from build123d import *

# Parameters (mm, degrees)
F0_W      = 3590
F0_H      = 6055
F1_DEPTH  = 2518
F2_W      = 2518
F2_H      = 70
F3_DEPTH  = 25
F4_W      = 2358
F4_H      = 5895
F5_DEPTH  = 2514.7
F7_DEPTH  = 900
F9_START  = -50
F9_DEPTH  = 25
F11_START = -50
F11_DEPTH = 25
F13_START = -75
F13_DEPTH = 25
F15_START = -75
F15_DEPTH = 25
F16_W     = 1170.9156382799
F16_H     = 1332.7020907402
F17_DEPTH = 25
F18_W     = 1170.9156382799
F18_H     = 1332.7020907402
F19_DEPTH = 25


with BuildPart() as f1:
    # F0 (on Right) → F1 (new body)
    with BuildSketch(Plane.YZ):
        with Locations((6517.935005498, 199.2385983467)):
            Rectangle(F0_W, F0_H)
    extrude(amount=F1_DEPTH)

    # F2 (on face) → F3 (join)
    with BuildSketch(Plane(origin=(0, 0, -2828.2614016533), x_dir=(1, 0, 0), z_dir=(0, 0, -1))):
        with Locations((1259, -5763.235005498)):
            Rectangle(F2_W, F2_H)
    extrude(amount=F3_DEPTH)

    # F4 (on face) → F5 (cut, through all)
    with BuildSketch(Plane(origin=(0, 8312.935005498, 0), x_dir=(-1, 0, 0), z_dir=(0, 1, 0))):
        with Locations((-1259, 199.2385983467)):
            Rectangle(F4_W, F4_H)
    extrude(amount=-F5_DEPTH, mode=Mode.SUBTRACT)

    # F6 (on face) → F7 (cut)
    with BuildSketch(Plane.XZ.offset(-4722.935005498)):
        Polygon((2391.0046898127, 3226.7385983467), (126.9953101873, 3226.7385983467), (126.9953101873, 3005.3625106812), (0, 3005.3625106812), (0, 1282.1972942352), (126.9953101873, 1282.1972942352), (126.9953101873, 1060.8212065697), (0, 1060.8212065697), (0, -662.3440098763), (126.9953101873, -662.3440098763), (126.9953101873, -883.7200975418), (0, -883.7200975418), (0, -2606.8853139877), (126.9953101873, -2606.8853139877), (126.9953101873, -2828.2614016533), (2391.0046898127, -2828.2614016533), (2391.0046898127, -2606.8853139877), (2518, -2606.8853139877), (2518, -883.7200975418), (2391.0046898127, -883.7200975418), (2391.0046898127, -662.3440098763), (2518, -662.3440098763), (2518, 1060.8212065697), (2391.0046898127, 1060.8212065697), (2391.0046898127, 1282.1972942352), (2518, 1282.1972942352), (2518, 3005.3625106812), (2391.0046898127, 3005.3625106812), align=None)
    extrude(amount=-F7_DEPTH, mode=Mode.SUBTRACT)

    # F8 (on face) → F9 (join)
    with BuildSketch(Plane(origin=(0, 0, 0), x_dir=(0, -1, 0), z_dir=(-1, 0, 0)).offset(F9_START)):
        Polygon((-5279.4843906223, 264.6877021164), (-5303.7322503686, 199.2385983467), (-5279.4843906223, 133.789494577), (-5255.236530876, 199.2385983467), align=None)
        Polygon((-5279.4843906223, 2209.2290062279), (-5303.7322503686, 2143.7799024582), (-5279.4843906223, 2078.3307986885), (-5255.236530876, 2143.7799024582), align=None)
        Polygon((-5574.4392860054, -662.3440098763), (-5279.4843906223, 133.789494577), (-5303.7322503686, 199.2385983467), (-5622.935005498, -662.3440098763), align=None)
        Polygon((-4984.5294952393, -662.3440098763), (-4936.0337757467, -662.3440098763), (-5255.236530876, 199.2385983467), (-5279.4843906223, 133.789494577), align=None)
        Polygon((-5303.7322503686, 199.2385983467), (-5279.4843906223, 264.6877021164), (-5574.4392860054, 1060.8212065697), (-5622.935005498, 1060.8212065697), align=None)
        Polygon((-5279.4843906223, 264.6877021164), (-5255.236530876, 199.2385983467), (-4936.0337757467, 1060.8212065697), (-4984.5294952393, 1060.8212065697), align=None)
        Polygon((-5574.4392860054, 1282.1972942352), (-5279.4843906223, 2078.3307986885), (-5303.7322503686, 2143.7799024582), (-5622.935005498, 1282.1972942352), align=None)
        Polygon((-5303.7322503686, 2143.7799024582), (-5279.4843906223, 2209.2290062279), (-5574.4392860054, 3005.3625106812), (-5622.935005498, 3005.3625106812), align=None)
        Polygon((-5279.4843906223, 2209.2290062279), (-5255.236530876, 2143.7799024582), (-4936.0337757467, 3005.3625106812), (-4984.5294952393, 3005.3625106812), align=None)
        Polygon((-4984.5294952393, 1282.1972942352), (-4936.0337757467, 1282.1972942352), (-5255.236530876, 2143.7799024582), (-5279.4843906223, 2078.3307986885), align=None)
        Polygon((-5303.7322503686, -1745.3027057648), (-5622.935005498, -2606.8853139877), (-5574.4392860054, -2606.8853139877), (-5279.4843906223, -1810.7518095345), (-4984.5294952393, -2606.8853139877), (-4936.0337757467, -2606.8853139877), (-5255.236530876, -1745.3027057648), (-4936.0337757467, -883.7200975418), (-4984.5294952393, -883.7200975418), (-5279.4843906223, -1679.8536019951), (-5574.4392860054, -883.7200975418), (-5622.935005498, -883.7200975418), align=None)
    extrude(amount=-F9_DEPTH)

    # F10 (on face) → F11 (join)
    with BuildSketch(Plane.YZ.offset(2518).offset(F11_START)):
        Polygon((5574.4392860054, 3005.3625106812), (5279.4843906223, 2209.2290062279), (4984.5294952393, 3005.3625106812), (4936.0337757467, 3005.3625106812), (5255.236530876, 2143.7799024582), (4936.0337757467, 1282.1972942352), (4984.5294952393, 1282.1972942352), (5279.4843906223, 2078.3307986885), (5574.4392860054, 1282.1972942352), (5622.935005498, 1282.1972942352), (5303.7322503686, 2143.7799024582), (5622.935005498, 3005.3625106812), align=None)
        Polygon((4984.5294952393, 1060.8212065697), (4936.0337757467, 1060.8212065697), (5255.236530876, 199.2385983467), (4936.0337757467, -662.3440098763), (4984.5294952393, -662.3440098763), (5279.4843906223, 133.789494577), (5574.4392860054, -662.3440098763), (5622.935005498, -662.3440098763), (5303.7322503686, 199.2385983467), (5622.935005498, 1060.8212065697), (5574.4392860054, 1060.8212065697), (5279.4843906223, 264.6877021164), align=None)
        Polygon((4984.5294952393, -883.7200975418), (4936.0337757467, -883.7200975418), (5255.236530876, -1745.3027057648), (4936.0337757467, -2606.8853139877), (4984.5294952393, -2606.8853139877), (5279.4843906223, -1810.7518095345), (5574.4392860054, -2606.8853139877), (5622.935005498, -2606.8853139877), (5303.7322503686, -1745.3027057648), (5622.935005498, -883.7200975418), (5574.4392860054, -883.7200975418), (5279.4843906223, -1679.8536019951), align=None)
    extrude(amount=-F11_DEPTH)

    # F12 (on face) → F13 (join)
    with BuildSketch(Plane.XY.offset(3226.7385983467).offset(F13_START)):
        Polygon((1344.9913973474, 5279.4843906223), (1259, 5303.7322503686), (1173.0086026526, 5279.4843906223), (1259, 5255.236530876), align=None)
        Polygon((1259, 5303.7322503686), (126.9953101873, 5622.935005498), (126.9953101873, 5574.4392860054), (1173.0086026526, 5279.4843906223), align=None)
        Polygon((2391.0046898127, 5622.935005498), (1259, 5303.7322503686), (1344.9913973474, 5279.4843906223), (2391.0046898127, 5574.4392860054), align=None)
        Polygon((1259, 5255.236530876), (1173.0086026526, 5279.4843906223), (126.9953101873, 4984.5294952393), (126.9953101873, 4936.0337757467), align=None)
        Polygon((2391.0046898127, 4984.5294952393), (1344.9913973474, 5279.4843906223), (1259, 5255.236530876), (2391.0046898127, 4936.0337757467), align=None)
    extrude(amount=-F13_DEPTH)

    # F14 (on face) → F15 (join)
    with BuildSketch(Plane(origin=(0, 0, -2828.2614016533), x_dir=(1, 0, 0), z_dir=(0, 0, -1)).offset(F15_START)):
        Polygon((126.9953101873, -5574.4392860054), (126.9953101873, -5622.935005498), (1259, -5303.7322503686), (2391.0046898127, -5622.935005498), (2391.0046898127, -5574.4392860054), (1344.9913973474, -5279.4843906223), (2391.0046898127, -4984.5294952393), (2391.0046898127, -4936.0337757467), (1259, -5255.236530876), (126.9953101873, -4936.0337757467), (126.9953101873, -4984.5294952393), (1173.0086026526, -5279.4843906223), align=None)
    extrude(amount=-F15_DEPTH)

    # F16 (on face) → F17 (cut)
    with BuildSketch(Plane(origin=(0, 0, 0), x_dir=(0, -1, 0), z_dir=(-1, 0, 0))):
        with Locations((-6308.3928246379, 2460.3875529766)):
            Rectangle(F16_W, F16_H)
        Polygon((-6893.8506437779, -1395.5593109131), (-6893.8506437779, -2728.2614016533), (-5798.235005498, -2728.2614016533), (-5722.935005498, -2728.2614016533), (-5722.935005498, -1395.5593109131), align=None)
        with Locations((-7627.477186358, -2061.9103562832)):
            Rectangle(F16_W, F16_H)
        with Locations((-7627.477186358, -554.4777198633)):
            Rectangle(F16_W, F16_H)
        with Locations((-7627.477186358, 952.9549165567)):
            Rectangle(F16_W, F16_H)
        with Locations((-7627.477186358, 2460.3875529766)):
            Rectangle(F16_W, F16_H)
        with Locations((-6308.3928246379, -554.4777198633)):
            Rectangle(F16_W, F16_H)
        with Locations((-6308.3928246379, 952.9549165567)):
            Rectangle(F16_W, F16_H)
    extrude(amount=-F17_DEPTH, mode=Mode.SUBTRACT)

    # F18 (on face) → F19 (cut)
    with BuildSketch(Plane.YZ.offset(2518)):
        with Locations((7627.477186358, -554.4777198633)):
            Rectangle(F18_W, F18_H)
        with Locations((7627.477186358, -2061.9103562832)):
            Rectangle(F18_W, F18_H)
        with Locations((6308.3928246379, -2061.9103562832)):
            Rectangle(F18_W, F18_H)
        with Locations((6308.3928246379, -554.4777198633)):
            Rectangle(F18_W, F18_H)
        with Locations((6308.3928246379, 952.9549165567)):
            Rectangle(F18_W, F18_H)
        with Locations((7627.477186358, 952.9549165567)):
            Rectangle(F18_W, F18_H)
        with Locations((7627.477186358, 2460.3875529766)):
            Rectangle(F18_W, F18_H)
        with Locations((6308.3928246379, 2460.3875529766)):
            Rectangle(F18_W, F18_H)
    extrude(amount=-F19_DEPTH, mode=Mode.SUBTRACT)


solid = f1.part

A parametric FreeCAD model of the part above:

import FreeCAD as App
import Part
import Sketcher

V = App.Vector


def add_polygon(sketch, points):
    """Adds a closed chain of lines whose ends are joined by coincident constraints."""
    first, n = sketch.GeometryCount, len(points)
    for a, b in zip(points, points[1:] + points[:1]):
        sketch.addGeometry(Part.LineSegment(App.Vector(*a, 0), App.Vector(*b, 0)), False)
    for i in range(n):
        sketch.addConstraint(Sketcher.Constraint("Coincident", first + i, 2, first + (i + 1) % n, 1))

doc = App.newDocument("Part")
body = doc.addObject("PartDesign::Body", "Body")

# Sketch on YZ plane
sketch1 = doc.addObject("Sketcher::SketchObject", "Sketch")
body.addObject(sketch1)
sketch1.AttachmentSupport = (doc.YZ_Plane, [""])
sketch1.MapMode = "FlatFace"
add_polygon(sketch1, [(4722.935005, 3226.738598), (4722.935005, -2828.261402), (8312.935005, -2828.261402), (8312.935005, 3226.738598)])  # lines 0-3
sketch1.addConstraint(Sketcher.Constraint("Vertical", 0))
sketch1.addConstraint(Sketcher.Constraint("Horizontal", 1))
sketch1.addConstraint(Sketcher.Constraint("Vertical", 2))
sketch1.addConstraint(Sketcher.Constraint("Horizontal", 3))
sketch1.addConstraint(Sketcher.Constraint("DistanceX", 1, 1, 1, 2, 3590.0))
sketch1.addConstraint(Sketcher.Constraint("DistanceY", 0, 2, 0, 1, 6055.0))
sketch1.addConstraint(Sketcher.Constraint("DistanceY", 0, 2, -1, 1, 2828.261402))
sketch1.addConstraint(Sketcher.Constraint("DistanceX", -1, 1, 0, 2, 4722.935005))
pad1 = doc.addObject("PartDesign::Pad", "Pad")
body.addObject(pad1)
pad1.Profile = sketch1
pad1.Length = 2518

# Sketch on XY plane
sketch2 = doc.addObject("Sketcher::SketchObject", "Sketch001")
body.addObject(sketch2)
sketch2.AttachmentSupport = (doc.XY_Plane, [""])
sketch2.MapMode = "FlatFace"
sketch2.AttachmentOffset = App.Placement(V(0, 0, -2828.261402), App.Rotation())
add_polygon(sketch2, [(0, 5728.235005), (0, 5798.235005), (2518, 5798.235005), (2518, 5728.235005)])  # lines 0-3
sketch2.addConstraint(Sketcher.Constraint("Vertical", 0))
sketch2.addConstraint(Sketcher.Constraint("Horizontal", 1))
sketch2.addConstraint(Sketcher.Constraint("Vertical", 2))
sketch2.addConstraint(Sketcher.Constraint("Horizontal", 3))
sketch2.addConstraint(Sketcher.Constraint("PointOnObject", 0, 2, -2))
sketch2.addConstraint(Sketcher.Constraint("DistanceX", 1, 1, 1, 2, 2518.0))
sketch2.addConstraint(Sketcher.Constraint("DistanceY", 0, 1, 0, 2, 70.0))
sketch2.addConstraint(Sketcher.Constraint("DistanceY", -1, 1, 0, 2, 5798.235005))
pad2 = doc.addObject("PartDesign::Pad", "Pad001")
body.addObject(pad2)
pad2.Profile = sketch2
pad2.Length = 25
pad2.Reversed = True

# Sketch on XZ plane
sketch3 = doc.addObject("Sketcher::SketchObject", "Sketch002")
body.addObject(sketch3)
sketch3.AttachmentSupport = (doc.XZ_Plane, [""])
sketch3.MapMode = "FlatFace"
sketch3.AttachmentOffset = App.Placement(V(0, 0, -8312.935005), App.Rotation())
add_polygon(sketch3, [(2438, 3146.738598), (2438, -2748.261402), (80, -2748.261402), (80, 3146.738598)])  # lines 0-3
sketch3.addConstraint(Sketcher.Constraint("Vertical", 0))
sketch3.addConstraint(Sketcher.Constraint("Horizontal", 1))
sketch3.addConstraint(Sketcher.Constraint("Vertical", 2))
sketch3.addConstraint(Sketcher.Constraint("Horizontal", 3))
sketch3.addConstraint(Sketcher.Constraint("DistanceX", 1, 2, 1, 1, 2358.0))
sketch3.addConstraint(Sketcher.Constraint("DistanceY", 0, 2, 0, 1, 5895.0))
sketch3.addConstraint(Sketcher.Constraint("DistanceX", -1, 1, 0, 2, 2438.0))
sketch3.addConstraint(Sketcher.Constraint("DistanceY", 0, 2, -1, 1, 2748.261402))
pocket1 = doc.addObject("PartDesign::Pocket", "Pocket")
body.addObject(pocket1)
pocket1.Profile = sketch3
pocket1.Length = 2514.7
pocket1.Reversed = True

# Sketch on XZ plane
sketch4 = doc.addObject("Sketcher::SketchObject", "Sketch003")
body.addObject(sketch4)
sketch4.AttachmentSupport = (doc.XZ_Plane, [""])
sketch4.MapMode = "FlatFace"
sketch4.AttachmentOffset = App.Placement(V(0, 0, -4722.935005), App.Rotation())
add_polygon(sketch4, [(2391.00469, 3226.738598), (126.99531, 3226.738598), (126.99531, 3005.362511), (0, 3005.362511), (0, 1282.197294), (126.99531, 1282.197294), (126.99531, 1060.821207), (0, 1060.821207), (0, -662.34401), (126.99531, -662.34401), (126.99531, -883.720098), (0, -883.720098), (0, -2606.885314), (126.99531, -2606.885314), (126.99531, -2828.261402), (2391.00469, -2828.261402), (2391.00469, -2606.885314), (2518, -2606.885314), (2518, -883.720098), (2391.00469, -883.720098), (2391.00469, -662.34401), (2518, -662.34401), (2518, 1060.821207), (2391.00469, 1060.821207), (2391.00469, 1282.197294), (2518, 1282.197294), (2518, 3005.362511), (2391.00469, 3005.362511)])  # lines 0-27
sketch4.addConstraint(Sketcher.Constraint("Horizontal", 0))
sketch4.addConstraint(Sketcher.Constraint("Vertical", 1))
sketch4.addConstraint(Sketcher.Constraint("Horizontal", 2))
sketch4.addConstraint(Sketcher.Constraint("Vertical", 3))
sketch4.addConstraint(Sketcher.Constraint("Horizontal", 4))
sketch4.addConstraint(Sketcher.Constraint("Vertical", 5))
sketch4.addConstraint(Sketcher.Constraint("Horizontal", 6))
sketch4.addConstraint(Sketcher.Constraint("Vertical", 7))
sketch4.addConstraint(Sketcher.Constraint("Horizontal", 8))
sketch4.addConstraint(Sketcher.Constraint("Vertical", 9))
sketch4.addConstraint(Sketcher.Constraint("Horizontal", 10))
sketch4.addConstraint(Sketcher.Constraint("Vertical", 11))
sketch4.addConstraint(Sketcher.Constraint("Horizontal", 12))
sketch4.addConstraint(Sketcher.Constraint("Vertical", 13))
sketch4.addConstraint(Sketcher.Constraint("Horizontal", 14))
sketch4.addConstraint(Sketcher.Constraint("Vertical", 15))
sketch4.addConstraint(Sketcher.Constraint("Horizontal", 16))
sketch4.addConstraint(Sketcher.Constraint("Vertical", 17))
sketch4.addConstraint(Sketcher.Constraint("Horizontal", 18))
sketch4.addConstraint(Sketcher.Constraint("Vertical", 19))
sketch4.addConstraint(Sketcher.Constraint("Horizontal", 20))
sketch4.addConstraint(Sketcher.Constraint("Vertical", 21))
sketch4.addConstraint(Sketcher.Constraint("Horizontal", 22))
sketch4.addConstraint(Sketcher.Constraint("Vertical", 23))
sketch4.addConstraint(Sketcher.Constraint("Horizontal", 24))
sketch4.addConstraint(Sketcher.Constraint("Vertical", 25))
sketch4.addConstraint(Sketcher.Constraint("Horizontal", 26))
sketch4.addConstraint(Sketcher.Constraint("Vertical", 27))
sketch4.addConstraint(Sketcher.Constraint("PointOnObject", 2, 2, -2))
sketch4.addConstraint(Sketcher.Constraint("PointOnObject", 6, 2, -2))
sketch4.addConstraint(Sketcher.Constraint("PointOnObject", 10, 2, -2))
sketch4.addConstraint(Sketcher.Constraint("Horizontal", 12, 2, 15, 2))
sketch4.addConstraint(Sketcher.Constraint("Horizontal", 10, 2, 17, 2))
sketch4.addConstraint(Sketcher.Constraint("Horizontal", 8, 2, 19, 2))
sketch4.addConstraint(Sketcher.Constraint("Horizontal", 6, 2, 21, 2))
sketch4.addConstraint(Sketcher.Constraint("Horizontal", 4, 2, 23, 2))
sketch4.addConstraint(Sketcher.Constraint("Horizontal", 2, 2, 25, 2))
sketch4.addConstraint(Sketcher.Constraint("Vertical", 1, 2, 4, 2))
sketch4.addConstraint(Sketcher.Constraint("Vertical", 5, 2, 8, 2))
sketch4.addConstraint(Sketcher.Constraint("Vertical", 9, 2, 12, 2))
sketch4.addConstraint(Sketcher.Constraint("Vertical", 15, 2, 18, 2))
sketch4.addConstraint(Sketcher.Constraint("Vertical", 17, 2, 20, 2))
sketch4.addConstraint(Sketcher.Constraint("Vertical", 19, 2, 22, 2))
sketch4.addConstraint(Sketcher.Constraint("Vertical", 21, 2, 24, 2))
sketch4.addConstraint(Sketcher.Constraint("Vertical", 23, 2, 26, 2))
sketch4.addConstraint(Sketcher.Constraint("Equal", 12, 16))
sketch4.addConstraint(Sketcher.Constraint("Equal", 1, 5))
sketch4.addConstraint(Sketcher.Constraint("Equal", 3, 7))
sketch4.addConstraint(Sketcher.Constraint("Equal", 5, 9))
sketch4.addConstraint(Sketcher.Constraint("Equal", 7, 11))
sketch4.addConstraint(Sketcher.Constraint("Equal", 9, 13))
sketch4.addConstraint(Sketcher.Constraint("DistanceX", -1, 1, 16, 2, 2518.0))
sketch4.addConstraint(Sketcher.Constraint("DistanceX", 0, 2, 0, 1, 2264.00938))
sketch4.addConstraint(Sketcher.Constraint("DistanceY", -1, 1, 0, 2, 3226.738598))
sketch4.addConstraint(Sketcher.Constraint("DistanceY", 13, 2, -1, 1, 2828.261402))
sketch4.addConstraint(Sketcher.Constraint("DistanceY", 1, 2, 1, 1, 221.376088))
pocket2 = doc.addObject("PartDesign::Pocket", "Pocket001")
body.addObject(pocket2)
pocket2.Profile = sketch4
pocket2.Length = 900

# Sketch on YZ plane
sketch5 = doc.addObject("Sketcher::SketchObject", "Sketch004")
body.addObject(sketch5)
sketch5.AttachmentSupport = (doc.YZ_Plane, [""])
sketch5.MapMode = "FlatFace"
sketch5.AttachmentOffset = App.Placement(V(0, 0, 50), App.Rotation())
add_polygon(sketch5, [(5303.73225, 199.238598), (5622.935005, -662.34401), (5574.439286, -662.34401), (5279.484391, 133.789495), (4984.529495, -662.34401), (4936.033776, -662.34401), (5255.236531, 199.238598), (4936.033776, 1060.821207), (4984.529495, 1060.821207), (5279.484391, 264.687702), (5574.439286, 1060.821207), (5622.935005, 1060.821207)])  # lines 0-11
add_polygon(sketch5, [(5303.73225, 2143.779902), (5622.935005, 1282.197294), (5574.439286, 1282.197294), (5279.484391, 2078.330799), (4984.529495, 1282.197294), (4936.033776, 1282.197294), (5255.236531, 2143.779902), (4936.033776, 3005.362511), (4984.529495, 3005.362511), (5279.484391, 2209.229006), (5574.439286, 3005.362511), (5622.935005, 3005.362511)])  # lines 12-23
add_polygon(sketch5, [(5303.73225, -1745.302706), (5622.935005, -2606.885314), (5574.439286, -2606.885314), (5279.484391, -1810.75181), (4984.529495, -2606.885314), (4936.033776, -2606.885314), (5255.236531, -1745.302706), (4936.033776, -883.720098), (4984.529495, -883.720098), (5279.484391, -1679.853602), (5574.439286, -883.720098), (5622.935005, -883.720098)])  # lines 24-35
sketch5.addConstraint(Sketcher.Constraint("Horizontal", 1))
sketch5.addConstraint(Sketcher.Constraint("Horizontal", 4))
sketch5.addConstraint(Sketcher.Constraint("Horizontal", 7))
sketch5.addConstraint(Sketcher.Constraint("Horizontal", 10))
sketch5.addConstraint(Sketcher.Constraint("Horizontal", 13))
sketch5.addConstraint(Sketcher.Constraint("Horizontal", 16))
sketch5.addConstraint(Sketcher.Constraint("Horizontal", 19))
sketch5.addConstraint(Sketcher.Constraint("Horizontal", 22))
sketch5.addConstraint(Sketcher.Constraint("Horizontal", 25))
sketch5.addConstraint(Sketcher.Constraint("Horizontal", 28))
sketch5.addConstraint(Sketcher.Constraint("Horizontal", 31))
sketch5.addConstraint(Sketcher.Constraint("Horizontal", 34))
sketch5.addConstraint(Sketcher.Constraint("Parallel", 0, 2))
sketch5.addConstraint(Sketcher.Constraint("Parallel", 3, 5))
sketch5.addConstraint(Sketcher.Constraint("Parallel", 2, 6))
sketch5.addConstraint(Sketcher.Constraint("Parallel", 6, 8))
sketch5.addConstraint(Sketcher.Constraint("Parallel", 5, 9))
sketch5.addConstraint(Sketcher.Constraint("Parallel", 9, 11))
sketch5.addConstraint(Sketcher.Constraint("Parallel", 8, 12))
sketch5.addConstraint(Sketcher.Constraint("Parallel", 12, 14))
sketch5.addConstraint(Sketcher.Constraint("Parallel", 11, 15))
sketch5.addConstraint(Sketcher.Constraint("Parallel", 15, 17))
sketch5.addConstraint(Sketcher.Constraint("Parallel", 14, 18))
sketch5.addConstraint(Sketcher.Constraint("Parallel", 18, 20))
sketch5.addConstraint(Sketcher.Constraint("Parallel", 17, 21))
sketch5.addConstraint(Sketcher.Constraint("Parallel", 21, 23))
sketch5.addConstraint(Sketcher.Constraint("Parallel", 20, 24))
sketch5.addConstraint(Sketcher.Constraint("Parallel", 24, 26))
sketch5.addConstraint(Sketcher.Constraint("Parallel", 23, 27))
sketch5.addConstraint(Sketcher.Constraint("Parallel", 27, 29))
sketch5.addConstraint(Sketcher.Constraint("Parallel", 26, 30))
sketch5.addConstraint(Sketcher.Constraint("Parallel", 30, 32))
sketch5.addConstraint(Sketcher.Constraint("Parallel", 29, 33))
sketch5.addConstraint(Sketcher.Constraint("Parallel", 33, 35))
sketch5.addConstraint(Sketcher.Constraint("Horizontal", 1, 2, 3, 2))
sketch5.addConstraint(Sketcher.Constraint("Horizontal", 7, 2, 9, 2))
sketch5.addConstraint(Sketcher.Constraint("Horizontal", 5, 2, 11, 2))
sketch5.addConstraint(Sketcher.Constraint("Horizontal", 13, 2, 15, 2))
sketch5.addConstraint(Sketcher.Constraint("Horizontal", 19, 2, 21, 2))
sketch5.addConstraint(Sketcher.Constraint("Horizontal", 17, 2, 23, 2))
sketch5.addConstraint(Sketcher.Constraint("Horizontal", 25, 2, 27, 2))
sketch5.addConstraint(Sketcher.Constraint("Horizontal", 31, 2, 33, 2))
sketch5.addConstraint(Sketcher.Constraint("Horizontal", 29, 2, 35, 2))
sketch5.addConstraint(Sketcher.Constraint("Vertical", 4, 2, 6, 2))
sketch5.addConstraint(Sketcher.Constraint("Vertical", 3, 2, 7, 2))
sketch5.addConstraint(Sketcher.Constraint("Vertical", 2, 2, 8, 2))
sketch5.addConstraint(Sketcher.Constraint("Vertical", 1, 2, 9, 2))
sketch5.addConstraint(Sketcher.Constraint("Vertical", 10, 2, 12, 2))
sketch5.addConstraint(Sketcher.Constraint("Vertical", 9, 2, 13, 2))
sketch5.addConstraint(Sketcher.Constraint("Vertical", 8, 2, 14, 2))
sketch5.addConstraint(Sketcher.Constraint("Vertical", 6, 2, 16, 2))
sketch5.addConstraint(Sketcher.Constraint("Vertical", 5, 2, 17, 2))
sketch5.addConstraint(Sketcher.Constraint("Vertical", 16, 2, 18, 2))
sketch5.addConstraint(Sketcher.Constraint("Vertical", 15, 2, 19, 2))
sketch5.addConstraint(Sketcher.Constraint("Vertical", 14, 2, 20, 2))
sketch5.addConstraint(Sketcher.Constraint("Vertical", 22, 2, 24, 2))
sketch5.addConstraint(Sketcher.Constraint("Vertical", 21, 2, 25, 2))
sketch5.addConstraint(Sketcher.Constraint("Vertical", 20, 2, 26, 2))
sketch5.addConstraint(Sketcher.Constraint("Vertical", 18, 2, 28, 2))
sketch5.addConstraint(Sketcher.Constraint("Vertical", 17, 2, 29, 2))
sketch5.addConstraint(Sketcher.Constraint("Vertical", 28, 2, 30, 2))
sketch5.addConstraint(Sketcher.Constraint("Vertical", 27, 2, 31, 2))
sketch5.addConstraint(Sketcher.Constraint("Vertical", 26, 2, 32, 2))
sketch5.addConstraint(Sketcher.Constraint("Equal", 1, 4))
sketch5.addConstraint(Sketcher.Constraint("DistanceX", 1, 2, 1, 1, 48.495719))
sketch5.addConstraint(Sketcher.Constraint("DistanceY", -1, 1, 5, 2, 199.238598))
sketch5.addConstraint(Sketcher.Constraint("DistanceY", -1, 1, 14, 2, 2078.330799))
sketch5.addConstraint(Sketcher.Constraint("DistanceY", 32, 2, -1, 1, 1679.853602))
sketch5.addConstraint(Sketcher.Constraint("DistanceY", 26, 2, 1, 2, 1148.4078))
sketch5.addConstraint(Sketcher.Constraint("Distance", 2, 849.015281))
sketch5.addConstraint(Sketcher.Constraint("DistanceY", 0, 2, -1, 1, 662.34401))
sketch5.addConstraint(Sketcher.Constraint("DistanceX", -1, 1, 2, 2, 5279.484391))
pad3 = doc.addObject("PartDesign::Pad", "Pad002")
body.addObject(pad3)
pad3.Profile = sketch5
pad3.Length = 25

# Sketch on YZ plane
sketch6 = doc.addObject("Sketcher::SketchObject", "Sketch005")
body.addObject(sketch6)
sketch6.AttachmentSupport = (doc.YZ_Plane, [""])
sketch6.MapMode = "FlatFace"
sketch6.AttachmentOffset = App.Placement(V(0, 0, 2468), App.Rotation())
add_polygon(sketch6, [(5574.439286, 3005.362511), (5279.484391, 2209.229006), (4984.529495, 3005.362511), (4936.033776, 3005.362511), (5255.236531, 2143.779902), (4936.033776, 1282.197294), (4984.529495, 1282.197294), (5279.484391, 2078.330799), (5574.439286, 1282.197294), (5622.935005, 1282.197294), (5303.73225, 2143.779902), (5622.935005, 3005.362511)])  # lines 0-11
add_polygon(sketch6, [(4984.529495, 1060.821207), (4936.033776, 1060.821207), (5255.236531, 199.238598), (4936.033776, -662.34401), (4984.529495, -662.34401), (5279.484391, 133.789495), (5574.439286, -662.34401), (5622.935005, -662.34401), (5303.73225, 199.238598), (5622.935005, 1060.821207), (5574.439286, 1060.821207), (5279.484391, 264.687702)])  # lines 12-23
add_polygon(sketch6, [(4984.529495, -883.720098), (4936.033776, -883.720098), (5255.236531, -1745.302706), (4936.033776, -2606.885314), (4984.529495, -2606.885314), (5279.484391, -1810.75181), (5574.439286, -2606.885314), (5622.935005, -2606.885314), (5303.73225, -1745.302706), (5622.935005, -883.720098), (5574.439286, -883.720098), (5279.484391, -1679.853602)])  # lines 24-35
sketch6.addConstraint(Sketcher.Constraint("Horizontal", 2))
sketch6.addConstraint(Sketcher.Constraint("Horizontal", 5))
sketch6.addConstraint(Sketcher.Constraint("Horizontal", 8))
sketch6.addConstraint(Sketcher.Constraint("Horizontal", 11))
sketch6.addConstraint(Sketcher.Constraint("Horizontal", 12))
sketch6.addConstraint(Sketcher.Constraint("Horizontal", 15))
sketch6.addConstraint(Sketcher.Constraint("Horizontal", 18))
sketch6.addConstraint(Sketcher.Constraint("Horizontal", 21))
sketch6.addConstraint(Sketcher.Constraint("Horizontal", 24))
sketch6.addConstraint(Sketcher.Constraint("Horizontal", 27))
sketch6.addConstraint(Sketcher.Constraint("Horizontal", 30))
sketch6.addConstraint(Sketcher.Constraint("Horizontal", 33))
sketch6.addConstraint(Sketcher.Constraint("Parallel", 1, 3))
sketch6.addConstraint(Sketcher.Constraint("Parallel", 0, 4))
sketch6.addConstraint(Sketcher.Constraint("Parallel", 4, 6))
sketch6.addConstraint(Sketcher.Constraint("Parallel", 3, 7))
sketch6.addConstraint(Sketcher.Constraint("Parallel", 7, 9))
sketch6.addConstraint(Sketcher.Constraint("Parallel", 6, 10))
sketch6.addConstraint(Sketcher.Constraint("Parallel", 9, 13))
sketch6.addConstraint(Sketcher.Constraint("Parallel", 10, 14))
sketch6.addConstraint(Sketcher.Constraint("Parallel", 14, 16))
sketch6.addConstraint(Sketcher.Constraint("Parallel", 13, 17))
sketch6.addConstraint(Sketcher.Constraint("Parallel", 17, 19))
sketch6.addConstraint(Sketcher.Constraint("Parallel", 16, 20))
sketch6.addConstraint(Sketcher.Constraint("Parallel", 20, 22))
sketch6.addConstraint(Sketcher.Constraint("Parallel", 19, 23))
sketch6.addConstraint(Sketcher.Constraint("Parallel", 23, 25))
sketch6.addConstraint(Sketcher.Constraint("Parallel", 22, 26))
sketch6.addConstraint(Sketcher.Constraint("Parallel", 26, 28))
sketch6.addConstraint(Sketcher.Constraint("Parallel", 25, 29))
sketch6.addConstraint(Sketcher.Constraint("Parallel", 29, 31))
sketch6.addConstraint(Sketcher.Constraint("Parallel", 28, 32))
sketch6.addConstraint(Sketcher.Constraint("Parallel", 32, 34))
sketch6.addConstraint(Sketcher.Constraint("Parallel", 31, 35))
sketch6.addConstraint(Sketcher.Constraint("Horizontal", 5, 2, 7, 2))
sketch6.addConstraint(Sketcher.Constraint("Horizontal", 3, 2, 9, 2))
sketch6.addConstraint(Sketcher.Constraint("Horizontal", 2, 2, 10, 2))
sketch6.addConstraint(Sketcher.Constraint("Horizontal", 15, 2, 17, 2))
sketch6.addConstraint(Sketcher.Constraint("Horizontal", 13, 2, 19, 2))
sketch6.addConstraint(Sketcher.Constraint("Horizontal", 12, 2, 20, 2))
sketch6.addConstraint(Sketcher.Constraint("Horizontal", 27, 2, 29, 2))
sketch6.addConstraint(Sketcher.Constraint("Horizontal", 25, 2, 31, 2))
sketch6.addConstraint(Sketcher.Constraint("Horizontal", 24, 2, 32, 2))
sketch6.addConstraint(Sketcher.Constraint("Vertical", 2, 2, 4, 2))
sketch6.addConstraint(Sketcher.Constraint("Vertical", 1, 2, 5, 2))
sketch6.addConstraint(Sketcher.Constraint("Vertical", 0, 2, 6, 2))
sketch6.addConstraint(Sketcher.Constraint("Vertical", 8, 2, 10, 2))
sketch6.addConstraint(Sketcher.Constraint("Vertical", 4, 2, 12, 2))
sketch6.addConstraint(Sketcher.Constraint("Vertical", 3, 2, 13, 2))
sketch6.addConstraint(Sketcher.Constraint("Vertical", 12, 2, 14, 2))
sketch6.addConstraint(Sketcher.Constraint("Vertical", 5, 2, 15, 2))
sketch6.addConstraint(Sketcher.Constraint("Vertical", 6, 2, 16, 2))
sketch6.addConstraint(Sketcher.Constraint("Vertical", 10, 2, 18, 2))
sketch6.addConstraint(Sketcher.Constraint("Vertical", 17, 2, 21, 2))
sketch6.addConstraint(Sketcher.Constraint("Vertical", 16, 2, 22, 2))
sketch6.addConstraint(Sketcher.Constraint("Vertical", 14, 2, 24, 2))
sketch6.addConstraint(Sketcher.Constraint("Vertical", 13, 2, 25, 2))
sketch6.addConstraint(Sketcher.Constraint("Vertical", 24, 2, 26, 2))
sketch6.addConstraint(Sketcher.Constraint("Vertical", 23, 2, 27, 2))
sketch6.addConstraint(Sketcher.Constraint("Vertical", 22, 2, 28, 2))
sketch6.addConstraint(Sketcher.Constraint("Vertical", 20, 2, 30, 2))
sketch6.addConstraint(Sketcher.Constraint("Vertical", 29, 2, 33, 2))
sketch6.addConstraint(Sketcher.Constraint("Vertical", 28, 2, 34, 2))
sketch6.addConstraint(Sketcher.Constraint("Equal", 5, 8))
sketch6.addConstraint(Sketcher.Constraint("DistanceX", 2, 2, 2, 1, 48.495719))
sketch6.addConstraint(Sketcher.Constraint("DistanceY", -1, 1, 6, 2, 2078.330799))
sketch6.addConstraint(Sketcher.Constraint("DistanceY", -1, 1, 13, 2, 199.238598))
sketch6.addConstraint(Sketcher.Constraint("DistanceY", 34, 2, -1, 1, 1679.853602))
sketch6.addConstraint(Sketcher.Constraint("DistanceY", 16, 2, 5, 2, 1148.4078))
sketch6.addConstraint(Sketcher.Constraint("Distance", 0, 849.015281))
sketch6.addConstraint(Sketcher.Constraint("DistanceX", -1, 1, 0, 2, 5279.484391))
sketch6.addConstraint(Sketcher.Constraint("DistanceY", -1, 1, 1, 2, 3005.362511))
pad4 = doc.addObject("PartDesign::Pad", "Pad003")
body.addObject(pad4)
pad4.Profile = sketch6
pad4.Length = 25
pad4.Reversed = True

# Sketch on XY plane
sketch7 = doc.addObject("Sketcher::SketchObject", "Sketch006")
body.addObject(sketch7)
sketch7.AttachmentSupport = (doc.XY_Plane, [""])
sketch7.MapMode = "FlatFace"
sketch7.AttachmentOffset = App.Placement(V(0, 0, 3151.738598), App.Rotation())
add_polygon(sketch7, [(1259, 5303.73225), (126.99531, 5622.935005), (126.99531, 5574.439286), (1173.008603, 5279.484391), (126.99531, 4984.529495), (126.99531, 4936.033776), (1259, 5255.236531), (2391.00469, 4936.033776), (2391.00469, 4984.529495), (1344.991397, 5279.484391), (2391.00469, 5574.439286), (2391.00469, 5622.935005)])  # lines 0-11
sketch7.addConstraint(Sketcher.Constraint("Vertical", 1))
sketch7.addConstraint(Sketcher.Constraint("Vertical", 4))
sketch7.addConstraint(Sketcher.Constraint("Vertical", 7))
sketch7.addConstraint(Sketcher.Constraint("Vertical", 10))
sketch7.addConstraint(Sketcher.Constraint("Parallel", 0, 2))
sketch7.addConstraint(Sketcher.Constraint("Parallel", 3, 5))
sketch7.addConstraint(Sketcher.Constraint("Parallel", 2, 6))
sketch7.addConstraint(Sketcher.Constraint("Parallel", 6, 8))
sketch7.addConstraint(Sketcher.Constraint("Parallel", 5, 9))
sketch7.addConstraint(Sketcher.Constraint("Parallel", 9, 11))
sketch7.addConstraint(Sketcher.Constraint("Horizontal", 4, 2, 6, 2))
sketch7.addConstraint(Sketcher.Constraint("Horizontal", 3, 2, 7, 2))
sketch7.addConstraint(Sketcher.Constraint("Horizontal", 2, 2, 8, 2))
sketch7.addConstraint(Sketcher.Constraint("Horizontal", 1, 2, 9, 2))
sketch7.addConstraint(Sketcher.Constraint("Horizontal", 0, 2, 10, 2))
sketch7.addConstraint(Sketcher.Constraint("Vertical", 1, 2, 3, 2))
sketch7.addConstraint(Sketcher.Constraint("Vertical", 7, 2, 9, 2))
sketch7.addConstraint(Sketcher.Constraint("Equal", 1, 4))
sketch7.addConstraint(Sketcher.Constraint("DistanceX", -1, 1, 5, 2, 1259.0))
sketch7.addConstraint(Sketcher.Constraint("DistanceY", 1, 2, 1, 1, 48.495719))
sketch7.addConstraint(Sketcher.Constraint("Distance", 2, 1086.803661))
sketch7.addConstraint(Sketcher.Constraint("DistanceX", -1, 1, 0, 2, 126.99531))
sketch7.addConstraint(Sketcher.Constraint("DistanceY", -1, 1, 2, 2, 5279.484391))
sketch7.addConstraint(Sketcher.Constraint("DistanceY", -1, 1, 5, 2, 5255.236531))
pad5 = doc.addObject("PartDesign::Pad", "Pad004")
body.addObject(pad5)
pad5.Profile = sketch7
pad5.Length = 25
pad5.Reversed = True

# Sketch on XY plane
sketch8 = doc.addObject("Sketcher::SketchObject", "Sketch007")
body.addObject(sketch8)
sketch8.AttachmentSupport = (doc.XY_Plane, [""])
sketch8.MapMode = "FlatFace"
sketch8.AttachmentOffset = App.Placement(V(0, 0, -2753.261402), App.Rotation())
add_polygon(sketch8, [(126.99531, 5574.439286), (126.99531, 5622.935005), (1259, 5303.73225), (2391.00469, 5622.935005), (2391.00469, 5574.439286), (1344.991397, 5279.484391), (2391.00469, 4984.529495), (2391.00469, 4936.033776), (1259, 5255.236531), (126.99531, 4936.033776), (126.99531, 4984.529495), (1173.008603, 5279.484391)])  # lines 0-11
sketch8.addConstraint(Sketcher.Constraint("Vertical", 0))
sketch8.addConstraint(Sketcher.Constraint("Vertical", 3))
sketch8.addConstraint(Sketcher.Constraint("Vertical", 6))
sketch8.addConstraint(Sketcher.Constraint("Vertical", 9))
sketch8.addConstraint(Sketcher.Constraint("Parallel", 2, 4))
sketch8.addConstraint(Sketcher.Constraint("Parallel", 1, 5))
sketch8.addConstraint(Sketcher.Constraint("Parallel", 5, 7))
sketch8.addConstraint(Sketcher.Constraint("Parallel", 4, 8))
sketch8.addConstraint(Sketcher.Constraint("Parallel", 8, 10))
sketch8.addConstraint(Sketcher.Constraint("Parallel", 7, 11))
sketch8.addConstraint(Sketcher.Constraint("Horizontal", 0, 2, 2, 2))
sketch8.addConstraint(Sketcher.Constraint("Horizontal", 6, 2, 8, 2))
sketch8.addConstraint(Sketcher.Constraint("Horizontal", 5, 2, 9, 2))
sketch8.addConstraint(Sketcher.Constraint("Horizontal", 4, 2, 10, 2))
sketch8.addConstraint(Sketcher.Constraint("Horizontal", 3, 2, 11, 2))
sketch8.addConstraint(Sketcher.Constraint("Vertical", 3, 2, 5, 2))
sketch8.addConstraint(Sketcher.Constraint("Vertical", 1, 2, 7, 2))
sketch8.addConstraint(Sketcher.Constraint("Equal", 3, 6))
sketch8.addConstraint(Sketcher.Constraint("DistanceX", -1, 1, 1, 2, 1259.0))
sketch8.addConstraint(Sketcher.Constraint("DistanceY", 0, 1, 0, 2, 48.495719))
sketch8.addConstraint(Sketcher.Constraint("Distance", 4, 1086.803661))
sketch8.addConstraint(Sketcher.Constraint("DistanceX", -1, 1, 0, 2, 126.99531))
sketch8.addConstraint(Sketcher.Constraint("DistanceY", -1, 1, 1, 2, 5303.73225))
sketch8.addConstraint(Sketcher.Constraint("DistanceY", -1, 1, 4, 2, 5279.484391))
pad6 = doc.addObject("PartDesign::Pad", "Pad005")
body.addObject(pad6)
pad6.Profile = sketch8
pad6.Length = 25

# Sketch on YZ plane
sketch9 = doc.addObject("Sketcher::SketchObject", "Sketch008")
body.addObject(sketch9)
sketch9.AttachmentSupport = (doc.YZ_Plane, [""])
sketch9.MapMode = "FlatFace"
add_polygon(sketch9, [(6893.850644, 3126.738598), (6893.850644, 1794.036508), (5722.935005, 1794.036508), (5722.935005, 3126.738598)])  # lines 0-3
add_polygon(sketch9, [(6893.850644, -1395.559311), (6893.850644, -2728.261402), (5722.935005, -2728.261402), (5722.935005, -1395.559311)])  # lines 4-7
add_polygon(sketch9, [(8212.935005, -1395.559311), (8212.935005, -2728.261402), (7042.019367, -2728.261402), (7042.019367, -1395.559311)])  # lines 8-11
add_polygon(sketch9, [(8212.935005, 111.873326), (8212.935005, -1220.828765), (7042.019367, -1220.828765), (7042.019367, 111.873326)])  # lines 12-15
add_polygon(sketch9, [(8212.935005, 1619.305962), (8212.935005, 286.603871), (7042.019367, 286.603871), (7042.019367, 1619.305962)])  # lines 16-19
add_polygon(sketch9, [(8212.935005, 3126.738598), (8212.935005, 1794.036508), (7042.019367, 1794.036508), (7042.019367, 3126.738598)])  # lines 20-23
add_polygon(sketch9, [(6893.850644, 111.873326), (6893.850644, -1220.828765), (5722.935005, -1220.828765), (5722.935005, 111.873326)])  # lines 24-27
add_polygon(sketch9, [(6893.850644, 1619.305962), (6893.850644, 286.603871), (5722.935005, 286.603871), (5722.935005, 1619.305962)])  # lines 28-31
sketch9.addConstraint(Sketcher.Constraint("Vertical", 0))
sketch9.addConstraint(Sketcher.Constraint("Horizontal", 1))
sketch9.addConstraint(Sketcher.Constraint("Vertical", 2))
sketch9.addConstraint(Sketcher.Constraint("Horizontal", 3))
sketch9.addConstraint(Sketcher.Constraint("Vertical", 4))
sketch9.addConstraint(Sketcher.Constraint("Horizontal", 5))
sketch9.addConstraint(Sketcher.Constraint("Vertical", 6))
sketch9.addConstraint(Sketcher.Constraint("Horizontal", 7))
sketch9.addConstraint(Sketcher.Constraint("Vertical", 8))
sketch9.addConstraint(Sketcher.Constraint("Horizontal", 9))
sketch9.addConstraint(Sketcher.Constraint("Vertical", 10))
sketch9.addConstraint(Sketcher.Constraint("Horizontal", 11))
sketch9.addConstraint(Sketcher.Constraint("Vertical", 12))
sketch9.addConstraint(Sketcher.Constraint("Horizontal", 13))
sketch9.addConstraint(Sketcher.Constraint("Vertical", 14))
sketch9.addConstraint(Sketcher.Constraint("Horizontal", 15))
sketch9.addConstraint(Sketcher.Constraint("Vertical", 16))
sketch9.addConstraint(Sketcher.Constraint("Horizontal", 17))
sketch9.addConstraint(Sketcher.Constraint("Vertical", 18))
sketch9.addConstraint(Sketcher.Constraint("Horizontal", 19))
sketch9.addConstraint(Sketcher.Constraint("Vertical", 20))
sketch9.addConstraint(Sketcher.Constraint("Horizontal", 21))
sketch9.addConstraint(Sketcher.Constraint("Vertical", 22))
sketch9.addConstraint(Sketcher.Constraint("Horizontal", 23))
sketch9.addConstraint(Sketcher.Constraint("Vertical", 24))
sketch9.addConstraint(Sketcher.Constraint("Horizontal", 25))
sketch9.addConstraint(Sketcher.Constraint("Vertical", 26))
sketch9.addConstraint(Sketcher.Constraint("Horizontal", 27))
sketch9.addConstraint(Sketcher.Constraint("Vertical", 28))
sketch9.addConstraint(Sketcher.Constraint("Horizontal", 29))
sketch9.addConstraint(Sketcher.Constraint("Vertical", 30))
sketch9.addConstraint(Sketcher.Constraint("Horizontal", 31))
sketch9.addConstraint(Sketcher.Constraint("Horizontal", 5, 2, 8, 2))
sketch9.addConstraint(Sketcher.Constraint("Horizontal", 7, 2, 10, 2))
sketch9.addConstraint(Sketcher.Constraint("Horizontal", 1, 2, 20, 2))
sketch9.addConstraint(Sketcher.Constraint("Horizontal", 3, 2, 22, 2))
sketch9.addConstraint(Sketcher.Constraint("Horizontal", 13, 2, 24, 2))
sketch9.addConstraint(Sketcher.Constraint("Horizontal", 15, 2, 26, 2))
sketch9.addConstraint(Sketcher.Constraint("Horizontal", 17, 2, 28, 2))
sketch9.addConstraint(Sketcher.Constraint("Horizontal", 19, 2, 30, 2))
sketch9.addConstraint(Sketcher.Constraint("Vertical", 3, 2, 4, 2))
sketch9.addConstraint(Sketcher.Constraint("Vertical", 2, 2, 5, 2))
sketch9.addConstraint(Sketcher.Constraint("Vertical", 11, 2, 12, 2))
sketch9.addConstraint(Sketcher.Constraint("Vertical", 10, 2, 13, 2))
sketch9.addConstraint(Sketcher.Constraint("Vertical", 15, 2, 16, 2))
sketch9.addConstraint(Sketcher.Constraint("Vertical", 14, 2, 17, 2))
sketch9.addConstraint(Sketcher.Constraint("Vertical", 19, 2, 20, 2))
sketch9.addConstraint(Sketcher.Constraint("Vertical", 18, 2, 21, 2))
sketch9.addConstraint(Sketcher.Constraint("Vertical", 7, 2, 24, 2))
sketch9.addConstraint(Sketcher.Constraint("Vertical", 6, 2, 25, 2))
sketch9.addConstraint(Sketcher.Constraint("Vertical", 27, 2, 28, 2))
sketch9.addConstraint(Sketcher.Constraint("Vertical", 26, 2, 29, 2))
sketch9.addConstraint(Sketcher.Constraint("Equal", 7, 9))
sketch9.addConstraint(Sketcher.Constraint("Equal", 2, 4))
sketch9.addConstraint(Sketcher.Constraint("Equal", 10, 12))
sketch9.addConstraint(Sketcher.Constraint("Equal", 14, 16))
sketch9.addConstraint(Sketcher.Constraint("DistanceY", 4, 2, 3, 2, 5855.0))
sketch9.addConstraint(Sketcher.Constraint("DistanceX", 5, 2, 8, 2, 2490.0))
sketch9.addConstraint(Sketcher.Constraint("DistanceX", 1, 2, 1, 1, 1170.915638))
sketch9.addConstraint(Sketcher.Constraint("DistanceY", 0, 2, 0, 1, 1332.702091))
sketch9.addConstraint(Sketcher.Constraint("DistanceY", -1, 1, 2, 2, 3126.738598))
sketch9.addConstraint(Sketcher.Constraint("DistanceY", -1, 1, 16, 2, 286.603871))
sketch9.addConstraint(Sketcher.Constraint("DistanceX", -1, 1, 0, 2, 6893.850644))
sketch9.addConstraint(Sketcher.Constraint("DistanceY", 12, 2, -1, 1, 1220.828765))
pocket3 = doc.addObject("PartDesign::Pocket", "Pocket002")
body.addObject(pocket3)
pocket3.Profile = sketch9
pocket3.Length = 25
pocket3.Reversed = True

# Sketch on YZ plane
sketch10 = doc.addObject("Sketcher::SketchObject", "Sketch009")
body.addObject(sketch10)
sketch10.AttachmentSupport = (doc.YZ_Plane, [""])
sketch10.MapMode = "FlatFace"
sketch10.AttachmentOffset = App.Placement(V(0, 0, 2518), App.Rotation())
add_polygon(sketch10, [(7042.019367, 111.873326), (7042.019367, -1220.828765), (8212.935005, -1220.828765), (8212.935005, 111.873326)])  # lines 0-3
add_polygon(sketch10, [(7042.019367, -1395.559311), (7042.019367, -2728.261402), (8212.935005, -2728.261402), (8212.935005, -1395.559311)])  # lines 4-7
add_polygon(sketch10, [(5722.935005, -1395.559311), (5722.935005, -2728.261402), (6893.850644, -2728.261402), (6893.850644, -1395.559311)])  # lines 8-11
add_polygon(sketch10, [(5722.935005, 111.873326), (5722.935005, -1220.828765), (6893.850644, -1220.828765), (6893.850644, 111.873326)])  # lines 12-15
add_polygon(sketch10, [(5722.935005, 1619.305962), (5722.935005, 286.603871), (6893.850644, 286.603871), (6893.850644, 1619.305962)])  # lines 16-19
add_polygon(sketch10, [(7042.019367, 1619.305962), (7042.019367, 286.603871), (8212.935005, 286.603871), (8212.935005, 1619.305962)])  # lines 20-23
add_polygon(sketch10, [(7042.019367, 3126.738598), (7042.019367, 1794.036508), (8212.935005, 1794.036508), (8212.935005, 3126.738598)])  # lines 24-27
add_polygon(sketch10, [(5722.935005, 3126.738598), (5722.935005, 1794.036508), (6893.850644, 1794.036508), (6893.850644, 3126.738598)])  # lines 28-31
sketch10.addConstraint(Sketcher.Constraint("Vertical", 0))
sketch10.addConstraint(Sketcher.Constraint("Horizontal", 1))
sketch10.addConstraint(Sketcher.Constraint("Vertical", 2))
sketch10.addConstraint(Sketcher.Constraint("Horizontal", 3))
sketch10.addConstraint(Sketcher.Constraint("Vertical", 4))
sketch10.addConstraint(Sketcher.Constraint("Horizontal", 5))
sketch10.addConstraint(Sketcher.Constraint("Vertical", 6))
sketch10.addConstraint(Sketcher.Constraint("Horizontal", 7))
sketch10.addConstraint(Sketcher.Constraint("Vertical", 8))
sketch10.addConstraint(Sketcher.Constraint("Horizontal", 9))
sketch10.addConstraint(Sketcher.Constraint("Vertical", 10))
sketch10.addConstraint(Sketcher.Constraint("Horizontal", 11))
sketch10.addConstraint(Sketcher.Constraint("Vertical", 12))
sketch10.addConstraint(Sketcher.Constraint("Horizontal", 13))
sketch10.addConstraint(Sketcher.Constraint("Vertical", 14))
sketch10.addConstraint(Sketcher.Constraint("Horizontal", 15))
sketch10.addConstraint(Sketcher.Constraint("Vertical", 16))
sketch10.addConstraint(Sketcher.Constraint("Horizontal", 17))
sketch10.addConstraint(Sketcher.Constraint("Vertical", 18))
sketch10.addConstraint(Sketcher.Constraint("Horizontal", 19))
sketch10.addConstraint(Sketcher.Constraint("Vertical", 20))
sketch10.addConstraint(Sketcher.Constraint("Horizontal", 21))
sketch10.addConstraint(Sketcher.Constraint("Vertical", 22))
sketch10.addConstraint(Sketcher.Constraint("Horizontal", 23))
sketch10.addConstraint(Sketcher.Constraint("Vertical", 24))
sketch10.addConstraint(Sketcher.Constraint("Horizontal", 25))
sketch10.addConstraint(Sketcher.Constraint("Vertical", 26))
sketch10.addConstraint(Sketcher.Constraint("Horizontal", 27))
sketch10.addConstraint(Sketcher.Constraint("Vertical", 28))
sketch10.addConstraint(Sketcher.Constraint("Horizontal", 29))
sketch10.addConstraint(Sketcher.Constraint("Vertical", 30))
sketch10.addConstraint(Sketcher.Constraint("Horizontal", 31))
sketch10.addConstraint(Sketcher.Constraint("Horizontal", 5, 2, 8, 2))
sketch10.addConstraint(Sketcher.Constraint("Horizontal", 7, 2, 10, 2))
sketch10.addConstraint(Sketcher.Constraint("Horizontal", 1, 2, 12, 2))
sketch10.addConstraint(Sketcher.Constraint("Horizontal", 3, 2, 14, 2))
sketch10.addConstraint(Sketcher.Constraint("Horizontal", 17, 2, 20, 2))
sketch10.addConstraint(Sketcher.Constraint("Horizontal", 19, 2, 22, 2))
sketch10.addConstraint(Sketcher.Constraint("Horizontal", 25, 2, 28, 2))
sketch10.addConstraint(Sketcher.Constraint("Horizontal", 27, 2, 30, 2))
sketch10.addConstraint(Sketcher.Constraint("Vertical", 3, 2, 4, 2))
sketch10.addConstraint(Sketcher.Constraint("Vertical", 2, 2, 5, 2))
sketch10.addConstraint(Sketcher.Constraint("Vertical", 11, 2, 12, 2))
sketch10.addConstraint(Sketcher.Constraint("Vertical", 10, 2, 13, 2))
sketch10.addConstraint(Sketcher.Constraint("Vertical", 15, 2, 16, 2))
sketch10.addConstraint(Sketcher.Constraint("Vertical", 14, 2, 17, 2))
sketch10.addConstraint(Sketcher.Constraint("Vertical", 7, 2, 20, 2))
sketch10.addConstraint(Sketcher.Constraint("Vertical", 6, 2, 21, 2))
sketch10.addConstraint(Sketcher.Constraint("Vertical", 23, 2, 24, 2))
sketch10.addConstraint(Sketcher.Constraint("Vertical", 22, 2, 25, 2))
sketch10.addConstraint(Sketcher.Constraint("Vertical", 19, 2, 28, 2))
sketch10.addConstraint(Sketcher.Constraint("Vertical", 18, 2, 29, 2))
sketch10.addConstraint(Sketcher.Constraint("Equal", 7, 9))
sketch10.addConstraint(Sketcher.Constraint("Equal", 2, 4))
sketch10.addConstraint(Sketcher.Constraint("Equal", 14, 16))
sketch10.addConstraint(Sketcher.Constraint("Equal", 22, 24))
sketch10.addConstraint(Sketcher.Constraint("DistanceX", 8, 2, 5, 2, 2490.0))
sketch10.addConstraint(Sketcher.Constraint("DistanceX", 1, 1, 1, 2, 1170.915638))
sketch10.addConstraint(Sketcher.Constraint("DistanceY", 0, 2, 0, 1, 1332.702091))
sketch10.addConstraint(Sketcher.Constraint("DistanceY", 4, 2, -1, 1, 2728.261402))
sketch10.addConstraint(Sketcher.Constraint("DistanceY", -1, 1, 26, 2, 3126.738598))
sketch10.addConstraint(Sketcher.Constraint("DistanceY", -1, 1, 16, 2, 286.603871))
sketch10.addConstraint(Sketcher.Constraint("DistanceX", -1, 1, 0, 2, 7042.019367))
sketch10.addConstraint(Sketcher.Constraint("DistanceY", 0, 2, -1, 1, 1220.828765))
pocket4 = doc.addObject("PartDesign::Pocket", "Pocket003")
body.addObject(pocket4)
pocket4.Profile = sketch10
pocket4.Length = 25

doc.recompute()
